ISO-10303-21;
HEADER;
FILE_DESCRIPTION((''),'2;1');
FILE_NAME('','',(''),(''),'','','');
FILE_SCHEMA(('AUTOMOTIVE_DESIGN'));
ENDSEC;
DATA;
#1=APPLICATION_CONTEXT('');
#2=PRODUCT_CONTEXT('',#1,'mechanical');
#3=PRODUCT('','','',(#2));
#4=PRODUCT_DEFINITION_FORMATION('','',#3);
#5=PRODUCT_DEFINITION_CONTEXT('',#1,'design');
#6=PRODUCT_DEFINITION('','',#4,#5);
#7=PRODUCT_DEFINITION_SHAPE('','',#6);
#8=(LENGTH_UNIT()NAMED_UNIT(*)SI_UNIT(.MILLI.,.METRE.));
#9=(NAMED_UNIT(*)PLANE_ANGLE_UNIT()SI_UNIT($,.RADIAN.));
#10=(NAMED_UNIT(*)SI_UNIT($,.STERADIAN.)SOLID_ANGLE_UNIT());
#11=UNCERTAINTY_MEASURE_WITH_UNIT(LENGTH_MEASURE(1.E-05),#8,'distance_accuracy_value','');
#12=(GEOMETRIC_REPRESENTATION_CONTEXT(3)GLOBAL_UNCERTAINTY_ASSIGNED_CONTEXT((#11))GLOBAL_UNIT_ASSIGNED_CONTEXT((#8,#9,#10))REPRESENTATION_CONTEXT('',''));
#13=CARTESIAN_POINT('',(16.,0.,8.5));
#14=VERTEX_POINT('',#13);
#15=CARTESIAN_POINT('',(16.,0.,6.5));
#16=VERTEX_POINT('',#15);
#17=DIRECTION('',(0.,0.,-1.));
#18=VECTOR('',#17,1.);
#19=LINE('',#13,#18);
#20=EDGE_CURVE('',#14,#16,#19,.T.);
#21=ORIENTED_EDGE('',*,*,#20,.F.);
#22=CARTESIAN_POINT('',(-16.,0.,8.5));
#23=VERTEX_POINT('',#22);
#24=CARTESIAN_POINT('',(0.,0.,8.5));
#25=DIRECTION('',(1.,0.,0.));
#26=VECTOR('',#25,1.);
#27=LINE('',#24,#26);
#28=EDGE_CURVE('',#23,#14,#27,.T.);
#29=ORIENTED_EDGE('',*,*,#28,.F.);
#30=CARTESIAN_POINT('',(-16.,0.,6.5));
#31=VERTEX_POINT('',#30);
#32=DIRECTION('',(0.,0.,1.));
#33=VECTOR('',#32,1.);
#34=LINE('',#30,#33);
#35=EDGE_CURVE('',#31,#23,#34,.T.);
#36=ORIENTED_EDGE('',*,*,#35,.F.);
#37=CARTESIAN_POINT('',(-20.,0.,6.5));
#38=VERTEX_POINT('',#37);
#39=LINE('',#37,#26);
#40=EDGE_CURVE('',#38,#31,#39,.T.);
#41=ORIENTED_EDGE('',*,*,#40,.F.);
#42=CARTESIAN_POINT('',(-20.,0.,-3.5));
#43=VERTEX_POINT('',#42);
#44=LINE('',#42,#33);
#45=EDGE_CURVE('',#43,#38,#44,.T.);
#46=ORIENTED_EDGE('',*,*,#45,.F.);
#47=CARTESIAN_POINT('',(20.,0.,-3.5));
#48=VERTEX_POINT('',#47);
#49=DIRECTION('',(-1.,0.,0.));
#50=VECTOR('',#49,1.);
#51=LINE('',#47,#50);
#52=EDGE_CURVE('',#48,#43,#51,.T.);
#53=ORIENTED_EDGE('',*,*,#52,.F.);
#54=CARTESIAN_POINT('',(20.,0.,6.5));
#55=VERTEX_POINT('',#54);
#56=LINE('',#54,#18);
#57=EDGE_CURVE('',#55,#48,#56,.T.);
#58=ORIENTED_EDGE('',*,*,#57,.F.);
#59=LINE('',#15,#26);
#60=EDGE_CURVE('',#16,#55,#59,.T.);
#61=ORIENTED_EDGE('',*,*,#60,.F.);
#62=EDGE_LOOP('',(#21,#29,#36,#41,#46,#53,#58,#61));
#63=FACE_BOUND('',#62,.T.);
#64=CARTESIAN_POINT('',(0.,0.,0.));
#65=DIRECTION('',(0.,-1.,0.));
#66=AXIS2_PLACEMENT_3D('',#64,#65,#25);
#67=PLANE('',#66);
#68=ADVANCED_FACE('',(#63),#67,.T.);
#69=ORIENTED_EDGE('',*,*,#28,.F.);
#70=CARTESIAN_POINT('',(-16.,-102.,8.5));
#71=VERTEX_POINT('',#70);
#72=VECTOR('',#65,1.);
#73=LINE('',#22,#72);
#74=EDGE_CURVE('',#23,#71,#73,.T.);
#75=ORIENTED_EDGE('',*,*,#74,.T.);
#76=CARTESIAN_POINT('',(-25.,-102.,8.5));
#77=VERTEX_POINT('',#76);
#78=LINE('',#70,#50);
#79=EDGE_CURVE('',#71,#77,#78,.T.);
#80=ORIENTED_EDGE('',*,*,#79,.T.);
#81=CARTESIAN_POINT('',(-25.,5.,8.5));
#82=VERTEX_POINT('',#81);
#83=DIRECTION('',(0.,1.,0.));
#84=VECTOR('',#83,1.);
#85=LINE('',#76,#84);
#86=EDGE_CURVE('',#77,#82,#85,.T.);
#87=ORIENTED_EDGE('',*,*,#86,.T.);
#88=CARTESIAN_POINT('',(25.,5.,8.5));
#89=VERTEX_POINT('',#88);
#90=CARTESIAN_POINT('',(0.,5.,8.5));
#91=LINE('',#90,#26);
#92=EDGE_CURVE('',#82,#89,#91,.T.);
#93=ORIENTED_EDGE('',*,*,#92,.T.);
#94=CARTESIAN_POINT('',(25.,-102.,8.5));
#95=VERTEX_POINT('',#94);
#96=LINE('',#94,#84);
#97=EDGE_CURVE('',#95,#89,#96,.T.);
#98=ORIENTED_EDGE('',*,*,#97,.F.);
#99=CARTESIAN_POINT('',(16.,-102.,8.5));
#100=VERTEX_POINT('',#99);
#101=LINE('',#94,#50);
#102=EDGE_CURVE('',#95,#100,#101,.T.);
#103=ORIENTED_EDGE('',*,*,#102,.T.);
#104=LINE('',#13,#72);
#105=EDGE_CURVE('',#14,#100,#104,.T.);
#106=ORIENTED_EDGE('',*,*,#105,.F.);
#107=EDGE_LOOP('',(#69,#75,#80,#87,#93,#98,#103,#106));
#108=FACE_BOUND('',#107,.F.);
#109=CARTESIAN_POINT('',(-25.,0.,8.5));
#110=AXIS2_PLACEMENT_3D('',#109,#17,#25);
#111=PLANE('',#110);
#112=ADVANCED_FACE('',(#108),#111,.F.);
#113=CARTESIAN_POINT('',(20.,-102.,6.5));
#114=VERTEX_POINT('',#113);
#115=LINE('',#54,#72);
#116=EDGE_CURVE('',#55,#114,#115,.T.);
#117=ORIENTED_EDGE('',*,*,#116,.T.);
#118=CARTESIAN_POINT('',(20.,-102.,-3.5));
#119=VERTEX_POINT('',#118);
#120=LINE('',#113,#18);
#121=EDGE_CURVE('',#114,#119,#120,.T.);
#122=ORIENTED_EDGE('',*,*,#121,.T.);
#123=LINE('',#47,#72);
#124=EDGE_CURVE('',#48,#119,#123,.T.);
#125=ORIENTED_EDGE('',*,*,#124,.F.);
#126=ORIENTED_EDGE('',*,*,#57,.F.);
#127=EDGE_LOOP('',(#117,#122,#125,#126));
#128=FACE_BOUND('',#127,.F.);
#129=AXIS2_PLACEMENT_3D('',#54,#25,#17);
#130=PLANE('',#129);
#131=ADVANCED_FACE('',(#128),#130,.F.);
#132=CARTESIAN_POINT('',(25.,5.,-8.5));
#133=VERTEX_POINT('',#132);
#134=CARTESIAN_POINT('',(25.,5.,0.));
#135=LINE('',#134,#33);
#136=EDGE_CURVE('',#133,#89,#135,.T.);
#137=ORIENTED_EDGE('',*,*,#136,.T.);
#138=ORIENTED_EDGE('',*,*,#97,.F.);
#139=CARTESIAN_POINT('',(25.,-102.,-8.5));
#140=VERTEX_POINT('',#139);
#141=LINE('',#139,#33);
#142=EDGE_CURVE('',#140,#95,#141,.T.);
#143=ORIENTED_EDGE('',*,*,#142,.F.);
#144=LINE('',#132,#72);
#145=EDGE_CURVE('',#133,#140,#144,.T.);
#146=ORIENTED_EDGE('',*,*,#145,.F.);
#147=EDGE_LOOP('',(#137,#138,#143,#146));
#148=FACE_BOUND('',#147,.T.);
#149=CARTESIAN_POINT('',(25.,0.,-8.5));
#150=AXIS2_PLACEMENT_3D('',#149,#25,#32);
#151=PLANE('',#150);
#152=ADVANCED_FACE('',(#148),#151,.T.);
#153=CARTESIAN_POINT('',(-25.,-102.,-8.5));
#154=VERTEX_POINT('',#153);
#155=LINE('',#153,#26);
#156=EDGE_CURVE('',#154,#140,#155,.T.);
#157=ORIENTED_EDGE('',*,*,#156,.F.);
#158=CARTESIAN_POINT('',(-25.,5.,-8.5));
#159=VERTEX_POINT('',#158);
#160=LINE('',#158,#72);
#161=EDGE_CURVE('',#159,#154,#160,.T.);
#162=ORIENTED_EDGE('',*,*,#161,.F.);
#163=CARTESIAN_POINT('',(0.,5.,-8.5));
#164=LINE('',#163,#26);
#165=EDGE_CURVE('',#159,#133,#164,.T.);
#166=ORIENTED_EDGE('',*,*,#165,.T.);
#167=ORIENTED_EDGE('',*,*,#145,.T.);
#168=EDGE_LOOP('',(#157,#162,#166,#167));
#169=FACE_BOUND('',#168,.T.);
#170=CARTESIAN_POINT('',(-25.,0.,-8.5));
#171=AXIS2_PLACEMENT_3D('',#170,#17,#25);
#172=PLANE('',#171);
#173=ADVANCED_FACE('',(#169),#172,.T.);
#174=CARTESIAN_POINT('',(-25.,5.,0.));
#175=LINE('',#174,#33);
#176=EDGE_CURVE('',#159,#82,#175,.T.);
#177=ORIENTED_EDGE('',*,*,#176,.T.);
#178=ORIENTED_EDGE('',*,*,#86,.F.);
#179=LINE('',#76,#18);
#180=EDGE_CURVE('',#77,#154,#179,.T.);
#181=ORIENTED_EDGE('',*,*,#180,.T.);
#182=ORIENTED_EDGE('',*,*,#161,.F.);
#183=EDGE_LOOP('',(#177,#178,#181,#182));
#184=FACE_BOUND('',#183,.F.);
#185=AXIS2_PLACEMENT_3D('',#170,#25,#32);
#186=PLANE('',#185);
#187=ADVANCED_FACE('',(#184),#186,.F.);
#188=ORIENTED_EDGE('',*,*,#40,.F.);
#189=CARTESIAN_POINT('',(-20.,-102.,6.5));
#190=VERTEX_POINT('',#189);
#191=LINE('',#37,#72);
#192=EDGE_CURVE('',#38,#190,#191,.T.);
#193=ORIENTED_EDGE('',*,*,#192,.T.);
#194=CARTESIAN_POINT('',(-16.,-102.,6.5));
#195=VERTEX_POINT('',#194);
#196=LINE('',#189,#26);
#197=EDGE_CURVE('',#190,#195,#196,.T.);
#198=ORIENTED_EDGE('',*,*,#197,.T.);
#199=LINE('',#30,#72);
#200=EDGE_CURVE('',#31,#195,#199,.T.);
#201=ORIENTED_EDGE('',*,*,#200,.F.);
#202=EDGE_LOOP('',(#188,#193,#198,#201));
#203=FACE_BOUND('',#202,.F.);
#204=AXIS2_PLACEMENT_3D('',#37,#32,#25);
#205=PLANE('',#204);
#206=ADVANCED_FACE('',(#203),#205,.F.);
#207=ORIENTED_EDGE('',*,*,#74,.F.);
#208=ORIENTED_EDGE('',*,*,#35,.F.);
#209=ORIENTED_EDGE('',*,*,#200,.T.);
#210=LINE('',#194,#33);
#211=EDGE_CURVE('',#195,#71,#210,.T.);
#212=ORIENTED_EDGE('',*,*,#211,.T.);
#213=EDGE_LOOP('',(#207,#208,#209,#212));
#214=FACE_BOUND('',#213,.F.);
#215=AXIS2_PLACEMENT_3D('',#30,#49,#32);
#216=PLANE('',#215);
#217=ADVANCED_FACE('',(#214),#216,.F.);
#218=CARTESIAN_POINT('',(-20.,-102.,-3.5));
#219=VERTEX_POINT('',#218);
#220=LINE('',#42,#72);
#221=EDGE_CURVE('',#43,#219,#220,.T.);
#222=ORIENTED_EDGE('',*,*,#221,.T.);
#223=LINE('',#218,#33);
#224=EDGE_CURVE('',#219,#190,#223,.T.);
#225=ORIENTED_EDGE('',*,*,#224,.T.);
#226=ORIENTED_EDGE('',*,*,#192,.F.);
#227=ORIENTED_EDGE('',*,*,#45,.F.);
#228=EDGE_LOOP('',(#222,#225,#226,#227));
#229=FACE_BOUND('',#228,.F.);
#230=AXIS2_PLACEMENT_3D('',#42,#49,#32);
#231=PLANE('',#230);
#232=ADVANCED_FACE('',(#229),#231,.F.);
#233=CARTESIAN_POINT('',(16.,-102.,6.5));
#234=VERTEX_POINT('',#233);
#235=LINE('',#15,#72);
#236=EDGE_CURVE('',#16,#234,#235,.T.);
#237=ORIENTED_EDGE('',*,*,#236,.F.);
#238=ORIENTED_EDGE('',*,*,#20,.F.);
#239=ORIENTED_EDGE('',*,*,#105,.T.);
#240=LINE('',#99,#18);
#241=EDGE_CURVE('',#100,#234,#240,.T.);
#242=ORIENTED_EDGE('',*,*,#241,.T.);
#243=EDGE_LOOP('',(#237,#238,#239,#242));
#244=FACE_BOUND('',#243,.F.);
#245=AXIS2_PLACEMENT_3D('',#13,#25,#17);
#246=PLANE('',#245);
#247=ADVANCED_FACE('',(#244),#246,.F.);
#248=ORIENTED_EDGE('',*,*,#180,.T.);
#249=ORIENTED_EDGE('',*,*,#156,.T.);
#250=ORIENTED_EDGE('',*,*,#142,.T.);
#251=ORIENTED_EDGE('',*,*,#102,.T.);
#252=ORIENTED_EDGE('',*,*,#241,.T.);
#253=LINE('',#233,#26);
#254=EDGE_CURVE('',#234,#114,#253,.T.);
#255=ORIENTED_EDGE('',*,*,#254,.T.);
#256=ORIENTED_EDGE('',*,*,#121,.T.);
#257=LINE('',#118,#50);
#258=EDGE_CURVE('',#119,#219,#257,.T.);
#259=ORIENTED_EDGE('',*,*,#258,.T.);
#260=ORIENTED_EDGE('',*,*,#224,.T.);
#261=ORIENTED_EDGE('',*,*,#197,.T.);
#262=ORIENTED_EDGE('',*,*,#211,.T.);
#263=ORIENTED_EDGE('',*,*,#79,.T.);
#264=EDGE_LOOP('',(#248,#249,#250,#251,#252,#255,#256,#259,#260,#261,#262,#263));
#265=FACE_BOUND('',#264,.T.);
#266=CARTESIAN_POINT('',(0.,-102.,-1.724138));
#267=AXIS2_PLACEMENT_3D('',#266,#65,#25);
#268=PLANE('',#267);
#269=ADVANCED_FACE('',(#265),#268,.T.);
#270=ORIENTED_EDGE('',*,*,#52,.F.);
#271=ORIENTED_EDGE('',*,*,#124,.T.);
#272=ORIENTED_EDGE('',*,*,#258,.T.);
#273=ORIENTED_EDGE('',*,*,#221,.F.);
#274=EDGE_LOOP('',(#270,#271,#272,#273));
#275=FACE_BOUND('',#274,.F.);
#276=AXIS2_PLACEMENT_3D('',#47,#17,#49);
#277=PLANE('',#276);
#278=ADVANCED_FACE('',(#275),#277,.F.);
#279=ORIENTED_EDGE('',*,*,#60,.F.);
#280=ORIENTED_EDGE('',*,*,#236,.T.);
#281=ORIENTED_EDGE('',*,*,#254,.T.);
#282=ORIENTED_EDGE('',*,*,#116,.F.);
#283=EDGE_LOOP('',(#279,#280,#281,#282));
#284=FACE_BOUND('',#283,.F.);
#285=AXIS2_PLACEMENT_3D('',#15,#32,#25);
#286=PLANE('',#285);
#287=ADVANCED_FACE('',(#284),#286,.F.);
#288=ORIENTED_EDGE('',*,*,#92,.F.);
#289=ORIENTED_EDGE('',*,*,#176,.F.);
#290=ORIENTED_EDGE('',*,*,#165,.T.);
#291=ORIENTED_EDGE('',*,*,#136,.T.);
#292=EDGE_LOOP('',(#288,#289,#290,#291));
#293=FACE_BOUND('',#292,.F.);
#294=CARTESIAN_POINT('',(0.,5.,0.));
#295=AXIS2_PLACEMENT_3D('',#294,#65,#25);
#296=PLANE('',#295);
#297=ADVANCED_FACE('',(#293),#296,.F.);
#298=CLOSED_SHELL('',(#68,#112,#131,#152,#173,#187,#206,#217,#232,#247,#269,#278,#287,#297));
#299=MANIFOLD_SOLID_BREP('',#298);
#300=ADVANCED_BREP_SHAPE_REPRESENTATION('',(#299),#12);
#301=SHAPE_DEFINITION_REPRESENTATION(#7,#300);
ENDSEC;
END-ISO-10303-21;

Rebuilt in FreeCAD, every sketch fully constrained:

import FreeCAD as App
import Part
import Sketcher
from FreeCAD import Vector
Q = App.Units.Quantity


def add_polygon(sketch, points):
    """Adds a closed chain of lines whose ends are joined by coincident constraints."""
    first, n = sketch.GeometryCount, len(points)
    for a, b in zip(points, points[1:] + points[:1]):
        sketch.addGeometry(Part.LineSegment(App.Vector(*a, 0), App.Vector(*b, 0)), False)
    for i in range(n):
        sketch.addConstraint(Sketcher.Constraint("Coincident", first + i, 2, first + (i + 1) % n, 1))

doc = App.newDocument("Part")
body = doc.addObject("PartDesign::Body", "Body")

# Sketch on XZ plane
sketch1 = doc.addObject("Sketcher::SketchObject", "Sketch")
body.addObject(sketch1)
sketch1.AttachmentSupport = (doc.XZ_Plane, [""])
sketch1.MapMode = "FlatFace"
add_polygon(sketch1, [(-16, 8.5), (-25, 8.5), (-25, -8.5), (25, -8.5), (25, 8.5), (16, 8.5), (16, 6.5), (20, 6.5), (20, -3.5), (-20, -3.5), (-20, 6.5), (-16, 6.5)])  # lines 0-11
sketch1.addConstraint(Sketcher.Constraint("Horizontal", 0))
sketch1.addConstraint(Sketcher.Constraint("Vertical", 1))
sketch1.addConstraint(Sketcher.Constraint("Horizontal", 2))
sketch1.addConstraint(Sketcher.Constraint("Vertical", 3))
sketch1.addConstraint(Sketcher.Constraint("Horizontal", 4))
sketch1.addConstraint(Sketcher.Constraint("Vertical", 5))
sketch1.addConstraint(Sketcher.Constraint("Horizontal", 6))
sketch1.addConstraint(Sketcher.Constraint("Vertical", 7))
sketch1.addConstraint(Sketcher.Constraint("Horizontal", 8))
sketch1.addConstraint(Sketcher.Constraint("Vertical", 9))
sketch1.addConstraint(Sketcher.Constraint("Horizontal", 10))
sketch1.addConstraint(Sketcher.Constraint("Vertical", 11))
sketch1.addConstraint(Sketcher.Constraint("Symmetric", 0, 2, 2, 2, -1, 1))
sketch1.addConstraint(Sketcher.Constraint("Symmetric", 6, 2, 9, 2, -2))
sketch1.addConstraint(Sketcher.Constraint("Symmetric", 4, 2, 11, 2, -2))
sketch1.addConstraint(Sketcher.Constraint("DistanceX", 0, 2, 0, 1, Q("9 mm")))
sketch1.addConstraint(Sketcher.Constraint("DistanceX", 2, 1, 2, 2, Q("50 mm")))
sketch1.addConstraint(Sketcher.Constraint("DistanceX", 6, 1, 6, 2, Q("4 mm")))
sketch1.addConstraint(Sketcher.Constraint("DistanceY", 1, 2, 1, 1, Q("17 mm")))
sketch1.addConstraint(Sketcher.Constraint("DistanceY", 5, 2, 5, 1, Q("2 mm")))
sketch1.addConstraint(Sketcher.Constraint("DistanceY", 7, 2, 7, 1, Q("10 mm")))
pad1 = doc.addObject("PartDesign::Pad", "Pad")
body.addObject(pad1)
pad1.Profile = sketch1
pad1.Length = 102

# Sketch on XZ plane
sketch2 = doc.addObject("Sketcher::SketchObject", "Sketch001")
body.addObject(sketch2)
sketch2.AttachmentSupport = (doc.XZ_Plane, [""])
sketch2.MapMode = "FlatFace"
add_polygon(sketch2, [(-25, 8), (-25, -8), (25, -8), (25, 8)])  # lines 0-3
sketch2.addConstraint(Sketcher.Constraint("Vertical", 0))
sketch2.addConstraint(Sketcher.Constraint("Horizontal", 1))
sketch2.addConstraint(Sketcher.Constraint("Vertical", 2))
sketch2.addConstraint(Sketcher.Constraint("Horizontal", 3))
sketch2.addConstraint(Sketcher.Constraint("Symmetric", 0, 2, 2, 2, -1, 1))
sketch2.addConstraint(Sketcher.Constraint("DistanceX", 1, 1, 1, 2, Q("50 mm")))
sketch2.addConstraint(Sketcher.Constraint("DistanceY", 0, 2, 0, 1, Q("17 mm")))
pad2 = doc.addObject("PartDesign::Pad", "Pad001")
body.addObject(pad2)
pad2.Profile = sketch2
pad2.Length = 5
pad2.Reversed = True

doc.recompute()
